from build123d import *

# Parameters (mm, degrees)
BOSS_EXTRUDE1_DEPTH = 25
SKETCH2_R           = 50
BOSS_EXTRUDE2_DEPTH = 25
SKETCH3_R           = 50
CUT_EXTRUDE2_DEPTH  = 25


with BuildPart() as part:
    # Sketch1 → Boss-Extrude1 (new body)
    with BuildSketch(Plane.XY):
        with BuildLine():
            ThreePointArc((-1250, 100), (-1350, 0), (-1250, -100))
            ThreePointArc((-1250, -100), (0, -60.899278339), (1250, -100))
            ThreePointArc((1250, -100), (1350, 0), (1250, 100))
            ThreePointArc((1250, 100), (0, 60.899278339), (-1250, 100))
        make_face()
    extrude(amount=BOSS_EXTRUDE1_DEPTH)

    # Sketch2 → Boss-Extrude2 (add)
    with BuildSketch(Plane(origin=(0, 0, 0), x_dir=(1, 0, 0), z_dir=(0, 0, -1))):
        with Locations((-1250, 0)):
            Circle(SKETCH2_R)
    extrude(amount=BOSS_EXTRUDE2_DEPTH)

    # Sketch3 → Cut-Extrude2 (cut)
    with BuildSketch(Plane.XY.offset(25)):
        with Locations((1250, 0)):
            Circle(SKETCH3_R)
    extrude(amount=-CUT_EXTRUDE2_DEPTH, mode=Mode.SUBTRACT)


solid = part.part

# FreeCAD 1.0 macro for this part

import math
import FreeCAD as App
import Part
import Sketcher

V = App.Vector

doc = App.newDocument("Part")
body = doc.addObject("PartDesign::Body", "Body")

# Sketch on XY plane
sketch1 = body.newObject("Sketcher::SketchObject", "Sketch")
sketch1.AttachmentSupport = (doc.getObject("XY_Plane"), [""])
sketch1.MapMode = "FlatFace"
sketch1.addGeometry([
    Part.ArcOfCircle(Part.Circle(V(-1250, 0, 0), V(0, 0, 1), 100), math.radians(90), math.radians(270)),
    Part.ArcOfCircle(Part.Circle(V(0, -20060.899278, 0), V(0, 0, 1), 20000), math.radians(86.416678), math.radians(93.583322)),
    Part.ArcOfCircle(Part.Circle(V(1250, 0, 0), V(0, 0, 1), 100), math.radians(-90), math.radians(90)),
    Part.ArcOfCircle(Part.Circle(V(0, 20060.899278, 0), V(0, 0, 1), 20000), math.radians(-93.583322), math.radians(-86.416678)),
], False)
sketch1.addConstraint([
    Sketcher.Constraint("Coincident", 0, 2, 1, 2),
    Sketcher.Constraint("Coincident", 1, 1, 2, 1),
    Sketcher.Constraint("Coincident", 2, 2, 3, 2),
    Sketcher.Constraint("Coincident", 3, 1, 0, 1),
    Sketcher.Constraint("Equal", 0, 2),
    Sketcher.Constraint("Equal", 1, 3),
    Sketcher.Constraint("Symmetric", 0, 3, 2, 3, -1, 1),
    Sketcher.Constraint("Symmetric", 1, 3, 3, 3, -1, 1),
    Sketcher.Constraint("PointOnObject", 0, 3, -1),
    Sketcher.Constraint("PointOnObject", 1, 3, -2),
    Sketcher.Constraint("Radius", 0, 100.0),
    Sketcher.Constraint("Radius", 1, 20000.0),
    Sketcher.Constraint("DistanceX", 0, 3, -1, 1, 1250.0),
    Sketcher.Constraint("DistanceX", 0, 2, -1, 1, 1250.0),
])
pad1 = body.newObject("PartDesign::Pad", "Pad")
pad1.Profile = sketch1
pad1.Length = 25

# Sketch on XY plane
sketch2 = body.newObject("Sketcher::SketchObject", "Sketch001")
sketch2.AttachmentSupport = (doc.getObject("XY_Plane"), [""])
sketch2.MapMode = "FlatFace"
sketch2.addGeometry(Part.Circle(V(-1250, 0, 0), V(0, 0, 1), 50), False)
sketch2.addConstraint([
    Sketcher.Constraint("PointOnObject", 0, 3, -1),
    Sketcher.Constraint("Diameter", 0, 100.0),
    Sketcher.Constraint("DistanceX", 0, 3, -1, 1, 1250.0),
])
pad2 = body.newObject("PartDesign::Pad", "Pad001")
pad2.Profile = sketch2
pad2.Length = 25
pad2.Reversed = True

# Sketch on XY plane
sketch3 = body.newObject("Sketcher::SketchObject", "Sketch002")
sketch3.AttachmentSupport = (doc.getObject("XY_Plane"), [""])
sketch3.MapMode = "FlatFace"
sketch3.AttachmentOffset = App.Placement(V(0, 0, 25), App.Rotation())
sketch3.addGeometry(Part.Circle(V(1250, 0, 0), V(0, 0, 1), 50), False)
sketch3.addConstraint([
    Sketcher.Constraint("PointOnObject", 0, 3, -1),
    Sketcher.Constraint("Diameter", 0, 100.0),
    Sketcher.Constraint("DistanceX", -1, 1, 0, 3, 1250.0),
])
pocket1 = body.newObject("PartDesign::Pocket", "Pocket")
pocket1.Profile = sketch3
pocket1.Length = 25

doc.recompute()
